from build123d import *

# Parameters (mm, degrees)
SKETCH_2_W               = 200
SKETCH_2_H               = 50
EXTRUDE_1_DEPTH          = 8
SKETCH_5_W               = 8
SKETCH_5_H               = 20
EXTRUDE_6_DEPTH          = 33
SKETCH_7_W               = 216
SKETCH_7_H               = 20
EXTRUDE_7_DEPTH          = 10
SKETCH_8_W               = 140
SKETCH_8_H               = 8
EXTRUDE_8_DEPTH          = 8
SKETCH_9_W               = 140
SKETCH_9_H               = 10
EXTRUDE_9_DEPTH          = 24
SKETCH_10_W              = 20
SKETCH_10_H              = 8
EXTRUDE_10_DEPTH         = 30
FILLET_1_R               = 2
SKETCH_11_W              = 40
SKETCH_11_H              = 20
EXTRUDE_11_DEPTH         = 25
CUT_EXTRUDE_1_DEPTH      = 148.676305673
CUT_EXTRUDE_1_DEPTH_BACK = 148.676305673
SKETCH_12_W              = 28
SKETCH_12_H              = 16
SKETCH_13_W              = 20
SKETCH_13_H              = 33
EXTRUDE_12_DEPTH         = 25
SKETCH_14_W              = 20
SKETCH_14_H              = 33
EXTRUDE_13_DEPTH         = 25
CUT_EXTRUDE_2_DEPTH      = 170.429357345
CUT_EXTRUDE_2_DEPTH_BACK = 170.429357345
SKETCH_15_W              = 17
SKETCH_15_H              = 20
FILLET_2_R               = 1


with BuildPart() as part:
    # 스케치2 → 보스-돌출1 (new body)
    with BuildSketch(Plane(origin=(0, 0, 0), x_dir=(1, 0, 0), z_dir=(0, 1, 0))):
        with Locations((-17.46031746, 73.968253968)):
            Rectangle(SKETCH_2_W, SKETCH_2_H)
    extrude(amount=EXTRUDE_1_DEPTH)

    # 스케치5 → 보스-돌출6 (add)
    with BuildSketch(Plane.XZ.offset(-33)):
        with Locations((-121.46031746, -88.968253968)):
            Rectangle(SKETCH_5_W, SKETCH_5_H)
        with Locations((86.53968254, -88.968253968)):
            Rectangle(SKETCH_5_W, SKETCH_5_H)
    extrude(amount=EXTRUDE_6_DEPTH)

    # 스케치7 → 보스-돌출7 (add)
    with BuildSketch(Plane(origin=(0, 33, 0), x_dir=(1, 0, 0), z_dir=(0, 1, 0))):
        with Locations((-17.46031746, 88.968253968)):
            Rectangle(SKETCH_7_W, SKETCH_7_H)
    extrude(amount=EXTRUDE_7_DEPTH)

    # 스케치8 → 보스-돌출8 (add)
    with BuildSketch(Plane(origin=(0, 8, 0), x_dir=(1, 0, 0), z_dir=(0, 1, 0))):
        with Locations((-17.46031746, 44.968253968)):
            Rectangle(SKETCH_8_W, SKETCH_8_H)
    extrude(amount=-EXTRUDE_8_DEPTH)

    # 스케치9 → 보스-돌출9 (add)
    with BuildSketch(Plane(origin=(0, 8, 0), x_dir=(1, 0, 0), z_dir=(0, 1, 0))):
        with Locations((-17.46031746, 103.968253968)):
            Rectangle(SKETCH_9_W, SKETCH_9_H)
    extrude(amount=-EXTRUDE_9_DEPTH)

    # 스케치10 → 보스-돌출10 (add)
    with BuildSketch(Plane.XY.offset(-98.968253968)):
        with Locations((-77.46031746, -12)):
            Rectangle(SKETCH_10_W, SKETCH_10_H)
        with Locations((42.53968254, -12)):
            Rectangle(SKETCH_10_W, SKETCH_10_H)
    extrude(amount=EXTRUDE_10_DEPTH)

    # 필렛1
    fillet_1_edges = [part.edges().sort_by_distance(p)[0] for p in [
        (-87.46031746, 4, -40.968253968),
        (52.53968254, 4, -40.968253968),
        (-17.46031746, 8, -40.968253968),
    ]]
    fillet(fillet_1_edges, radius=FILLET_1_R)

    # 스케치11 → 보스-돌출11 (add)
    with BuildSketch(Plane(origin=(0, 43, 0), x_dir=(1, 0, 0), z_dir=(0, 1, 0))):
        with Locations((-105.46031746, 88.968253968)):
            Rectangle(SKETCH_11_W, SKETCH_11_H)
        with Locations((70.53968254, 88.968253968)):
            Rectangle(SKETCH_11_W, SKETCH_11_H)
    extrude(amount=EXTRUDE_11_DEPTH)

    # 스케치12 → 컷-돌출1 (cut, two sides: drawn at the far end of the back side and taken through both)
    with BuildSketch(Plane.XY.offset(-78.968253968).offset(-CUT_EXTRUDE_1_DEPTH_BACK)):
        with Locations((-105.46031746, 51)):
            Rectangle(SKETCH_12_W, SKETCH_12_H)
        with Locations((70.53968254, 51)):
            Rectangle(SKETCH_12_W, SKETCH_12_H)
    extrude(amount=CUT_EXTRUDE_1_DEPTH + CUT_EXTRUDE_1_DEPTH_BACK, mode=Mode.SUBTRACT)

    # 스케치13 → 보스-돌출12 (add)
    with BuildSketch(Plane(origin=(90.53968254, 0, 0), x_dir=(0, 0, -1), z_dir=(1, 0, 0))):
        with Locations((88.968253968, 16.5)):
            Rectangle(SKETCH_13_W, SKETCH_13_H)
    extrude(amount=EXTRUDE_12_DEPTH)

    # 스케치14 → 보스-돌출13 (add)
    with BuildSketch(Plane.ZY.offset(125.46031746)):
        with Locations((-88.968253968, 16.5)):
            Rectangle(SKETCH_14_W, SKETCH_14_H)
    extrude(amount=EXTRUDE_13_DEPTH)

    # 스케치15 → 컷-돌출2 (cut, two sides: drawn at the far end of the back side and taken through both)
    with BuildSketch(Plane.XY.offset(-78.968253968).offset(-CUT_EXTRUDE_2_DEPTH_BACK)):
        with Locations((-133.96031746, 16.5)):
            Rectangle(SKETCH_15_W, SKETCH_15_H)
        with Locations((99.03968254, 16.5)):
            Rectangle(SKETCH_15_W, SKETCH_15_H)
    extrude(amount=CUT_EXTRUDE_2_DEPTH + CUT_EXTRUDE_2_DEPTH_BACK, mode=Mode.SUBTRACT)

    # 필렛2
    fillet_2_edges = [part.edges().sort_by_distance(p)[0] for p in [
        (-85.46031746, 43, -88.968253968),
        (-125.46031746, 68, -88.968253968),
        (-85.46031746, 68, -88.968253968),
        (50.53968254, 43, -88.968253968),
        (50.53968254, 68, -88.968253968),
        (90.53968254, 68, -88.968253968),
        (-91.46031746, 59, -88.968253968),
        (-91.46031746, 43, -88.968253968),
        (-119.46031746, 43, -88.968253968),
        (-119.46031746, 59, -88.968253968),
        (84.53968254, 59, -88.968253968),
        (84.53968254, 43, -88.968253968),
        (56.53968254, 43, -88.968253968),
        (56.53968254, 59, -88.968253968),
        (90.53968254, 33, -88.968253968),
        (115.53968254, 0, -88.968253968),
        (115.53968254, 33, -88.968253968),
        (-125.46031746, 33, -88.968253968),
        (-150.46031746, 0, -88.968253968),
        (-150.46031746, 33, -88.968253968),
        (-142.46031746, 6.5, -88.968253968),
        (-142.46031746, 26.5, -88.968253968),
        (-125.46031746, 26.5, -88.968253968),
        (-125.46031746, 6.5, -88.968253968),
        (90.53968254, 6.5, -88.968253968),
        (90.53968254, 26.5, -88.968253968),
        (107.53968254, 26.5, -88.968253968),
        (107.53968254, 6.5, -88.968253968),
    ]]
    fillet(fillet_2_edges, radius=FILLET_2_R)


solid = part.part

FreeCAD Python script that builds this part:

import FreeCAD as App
import Part
import Sketcher
from FreeCAD import Vector
Q = App.Units.Quantity


def edges_at(feature, points):
    """Names of the edges that pass closest to the given points."""
    edges = feature.Shape.Edges
    near = lambda p: min(range(len(edges)), key=lambda i: edges[i].distToShape(Part.Vertex(*p))[0])
    return sorted({f"Edge{near(p) + 1}" for p in points})


def add_polygon(sketch, points):
    """Adds a closed chain of lines whose ends are joined by coincident constraints."""
    first, n = sketch.GeometryCount, len(points)
    for a, b in zip(points, points[1:] + points[:1]):
        sketch.addGeometry(Part.LineSegment(App.Vector(*a, 0), App.Vector(*b, 0)), False)
    for i in range(n):
        sketch.addConstraint(Sketcher.Constraint("Coincident", first + i, 2, first + (i + 1) % n, 1))

doc = App.newDocument("Part")
params = doc.addObject("Spreadsheet::Sheet", "Params")
for row, (alias, value) in enumerate([
    ("sketch1_width", "200 mm"),
    ("sketch1_height", "50 mm"),
    ("pad1_length", "8 mm"),
    ("sketch2_width", "8 mm"),
    ("sketch2_height", "20 mm"),
    ("pad2_length", "33 mm"),
    ("sketch3_width", "216 mm"),
    ("sketch3_height", "20 mm"),
    ("pad3_length", "10 mm"),
    ("sketch4_width", "140 mm"),
    ("sketch4_height", "8 mm"),
    ("pad4_length", "8 mm"),
    ("sketch5_width", "140 mm"),
    ("sketch5_height", "10 mm"),
    ("pad5_length", "24 mm"),
    ("sketch6_width", "20 mm"),
    ("sketch6_height", "8 mm"),
    ("pad6_length", "30 mm"),
    ("fillet_radius", "2 mm"),
    ("sketch7_width", "40 mm"),
    ("sketch7_height", "20 mm"),
    ("pad7_length", "25 mm"),
    ("sketch8_width", "28 mm"),
    ("sketch8_height", "16 mm"),
    ("sketch9_width", "33 mm"),
    ("sketch9_height", "20 mm"),
    ("pad8_length", "25 mm"),
    ("sketch10_width", "33 mm"),
    ("sketch10_height", "20 mm"),
    ("pad9_length", "25 mm"),
    ("sketch11_width", "17 mm"),
    ("sketch11_height", "20 mm"),
    ("fillet2_radius", "1 mm"),
], start=1):
    params.set(f"A{row}", alias)
    params.set(f"B{row}", "=" + value)
    params.setAlias(f"B{row}", alias)

body = doc.addObject("PartDesign::Body", "Body")

sketch1 = body.newObject("Sketcher::SketchObject", "Sketch")
sketch1.AttachmentSupport = (doc.getObject("XZ_Plane"), [""])
sketch1.MapMode = "FlatFace"
add_polygon(sketch1, [(-117, -99), (-117, -49), (83, -49), (83, -99)])
sketch1.addConstraint([
    Sketcher.Constraint("Vertical", 0),
    Sketcher.Constraint("Horizontal", 1),
    Sketcher.Constraint("Vertical", 2),
    Sketcher.Constraint("Horizontal", 3),
    Sketcher.Constraint("DistanceX", 1, 1, 1, 2, Q("200 mm")),
    Sketcher.Constraint("DistanceY", 0, 1, 0, 2, Q("50 mm")),
    Sketcher.Constraint("DistanceX", 0, 2, -1, 1, Q("117.460317 mm")),
    Sketcher.Constraint("DistanceY", 0, 2, -1, 1, Q("48.968254 mm")),
])
sketch1.setExpression("Constraints[8]", "Params.sketch1_width")
sketch1.setExpression("Constraints[9]", "Params.sketch1_height")
pad1 = body.newObject("PartDesign::Pad", "Pad")
pad1.Profile = sketch1
pad1.setExpression("Length", "Params.pad1_length")
pad1.Reversed = True

sketch2 = body.newObject("Sketcher::SketchObject", "Sketch001")
sketch2.AttachmentSupport = (doc.getObject("XZ_Plane"), [""])
sketch2.MapMode = "FlatFace"
sketch2.AttachmentOffset = App.Placement(Vector(0, 0, -33), App.Rotation())
add_polygon(sketch2, [(-125, -79), (-125, -99), (-117, -99), (-117, -79)])
add_polygon(sketch2, [(83, -79), (83, -99), (91, -99), (91, -79)])
sketch2.addConstraint([
    Sketcher.Constraint("Vertical", 0),
    Sketcher.Constraint("Horizontal", 1),
    Sketcher.Constraint("Vertical", 2),
    Sketcher.Constraint("Horizontal", 3),
    Sketcher.Constraint("Vertical", 4),
    Sketcher.Constraint("Horizontal", 5),
    Sketcher.Constraint("Vertical", 6),
    Sketcher.Constraint("Horizontal", 7),
    Sketcher.Constraint("Horizontal", 1, 2, 4, 2),
    Sketcher.Constraint("Horizontal", 3, 2, 6, 2),
    Sketcher.Constraint("Equal", 3, 5),
    Sketcher.Constraint("DistanceX", 1, 1, 1, 2, Q("8 mm")),
    Sketcher.Constraint("DistanceY", 0, 2, 0, 1, Q("20 mm")),
    Sketcher.Constraint("DistanceX", 1, 2, 4, 2, Q("200 mm")),
    Sketcher.Constraint("DistanceX", 0, 2, -1, 1, Q("125.460317 mm")),
    Sketcher.Constraint("DistanceY", 0, 2, -1, 1, Q("98.968254 mm")),
])
sketch2.setExpression("Constraints[19]", "Params.sketch2_width")
sketch2.setExpression("Constraints[20]", "Params.sketch2_height")
pad2 = body.newObject("PartDesign::Pad", "Pad001")
pad2.Profile = sketch2
pad2.setExpression("Length", "Params.pad2_length")

sketch3 = body.newObject("Sketcher::SketchObject", "Sketch002")
sketch3.AttachmentSupport = (doc.getObject("XZ_Plane"), [""])
sketch3.MapMode = "FlatFace"
sketch3.AttachmentOffset = App.Placement(Vector(0, 0, -33), App.Rotation())
add_polygon(sketch3, [(-125, -99), (-125, -79), (91, -79), (91, -99)])
sketch3.addConstraint([
    Sketcher.Constraint("Vertical", 0),
    Sketcher.Constraint("Horizontal", 1),
    Sketcher.Constraint("Vertical", 2),
    Sketcher.Constraint("Horizontal", 3),
    Sketcher.Constraint("DistanceX", 1, 1, 1, 2, Q("216 mm")),
    Sketcher.Constraint("DistanceY", 0, 1, 0, 2, Q("20 mm")),
    Sketcher.Constraint("DistanceX", 0, 2, -1, 1, Q("125.460317 mm")),
    Sketcher.Constraint("DistanceY", 0, 2, -1, 1, Q("78.968254 mm")),
])
sketch3.setExpression("Constraints[8]", "Params.sketch3_width")
sketch3.setExpression("Constraints[9]", "Params.sketch3_height")
pad3 = body.newObject("PartDesign::Pad", "Pad002")
pad3.Profile = sketch3
pad3.setExpression("Length", "Params.pad3_length")
pad3.Reversed = True

sketch4 = body.newObject("Sketcher::SketchObject", "Sketch003")
sketch4.AttachmentSupport = (doc.getObject("XZ_Plane"), [""])
sketch4.MapMode = "FlatFace"
sketch4.AttachmentOffset = App.Placement(Vector(0, 0, -8), App.Rotation())
add_polygon(sketch4, [(-87, -49), (-87, -41), (53, -41), (53, -49)])
sketch4.addConstraint([
    Sketcher.Constraint("Vertical", 0),
    Sketcher.Constraint("Horizontal", 1),
    Sketcher.Constraint("Vertical", 2),
    Sketcher.Constraint("Horizontal", 3),
    Sketcher.Constraint("DistanceX", 1, 1, 1, 2, Q("140 mm")),
    Sketcher.Constraint("DistanceY", 0, 1, 0, 2, Q("8 mm")),
    Sketcher.Constraint("DistanceX", 0, 2, -1, 1, Q("87.460317 mm")),
    Sketcher.Constraint("DistanceY", 0, 2, -1, 1, Q("40.968254 mm")),
])
sketch4.setExpression("Constraints[8]", "Params.sketch4_width")
sketch4.setExpression("Constraints[9]", "Params.sketch4_height")
pad4 = body.newObject("PartDesign::Pad", "Pad003")
pad4.Profile = sketch4
pad4.setExpression("Length", "Params.pad4_length")

sketch5 = body.newObject("Sketcher::SketchObject", "Sketch004")
sketch5.AttachmentSupport = (doc.getObject("XZ_Plane"), [""])
sketch5.MapMode = "FlatFace"
sketch5.AttachmentOffset = App.Placement(Vector(0, 0, -8), App.Rotation())
add_polygon(sketch5, [(-87, -109), (-87, -99), (53, -99), (53, -109)])
sketch5.addConstraint([
    Sketcher.Constraint("Vertical", 0),
    Sketcher.Constraint("Horizontal", 1),
    Sketcher.Constraint("Vertical", 2),
    Sketcher.Constraint("Horizontal", 3),
    Sketcher.Constraint("DistanceX", 1, 1, 1, 2, Q("140 mm")),
    Sketcher.Constraint("DistanceY", 0, 1, 0, 2, Q("10 mm")),
    Sketcher.Constraint("DistanceX", 0, 2, -1, 1, Q("87.460317 mm")),
    Sketcher.Constraint("DistanceY", 0, 2, -1, 1, Q("98.968254 mm")),
])
sketch5.setExpression("Constraints[8]", "Params.sketch5_width")
sketch5.setExpression("Constraints[9]", "Params.sketch5_height")
pad5 = body.newObject("PartDesign::Pad", "Pad004")
pad5.Profile = sketch5
pad5.setExpression("Length", "Params.pad5_length")

sketch6 = body.newObject("Sketcher::SketchObject", "Sketch005")
sketch6.AttachmentSupport = (doc.getObject("XY_Plane"), [""])
sketch6.MapMode = "FlatFace"
sketch6.AttachmentOffset = App.Placement(Vector(0, 0, -98.968254), App.Rotation())
add_polygon(sketch6, [(-87, -8), (-87, -16), (-67, -16), (-67, -8)])
add_polygon(sketch6, [(33, -8), (33, -16), (53, -16), (53, -8)])
sketch6.addConstraint([
    Sketcher.Constraint("Vertical", 0),
    Sketcher.Constraint("Horizontal", 1),
    Sketcher.Constraint("Vertical", 2),
    Sketcher.Constraint("Horizontal", 3),
    Sketcher.Constraint("Vertical", 4),
    Sketcher.Constraint("Horizontal", 5),
    Sketcher.Constraint("Vertical", 6),
    Sketcher.Constraint("Horizontal", 7),
    Sketcher.Constraint("Horizontal", 1, 2, 4, 2),
    Sketcher.Constraint("Horizontal", 3, 2, 6, 2),
    Sketcher.Constraint("Equal", 3, 5),
    Sketcher.Constraint("DistanceX", 1, 1, 1, 2, Q("20 mm")),
    Sketcher.Constraint("DistanceY", 0, 2, 0, 1, Q("8 mm")),
    Sketcher.Constraint("DistanceY", 0, 2, -1, 1, Q("16 mm")),
    Sketcher.Constraint("DistanceX", 1, 2, 4, 2, Q("100 mm")),
    Sketcher.Constraint("DistanceX", 0, 2, -1, 1, Q("87.460317 mm")),
])
sketch6.setExpression("Constraints[19]", "Params.sketch6_width")
sketch6.setExpression("Constraints[20]", "Params.sketch6_height")
pad6 = body.newObject("PartDesign::Pad", "Pad005")
pad6.Profile = sketch6
pad6.setExpression("Length", "Params.pad6_length")
doc.recompute()

fillet = body.newObject("PartDesign::Fillet", "Fillet")
fillet.Base = (pad6, edges_at(pad6, [(-87.46, 4, -40.968), (52.54, 4, -40.968), (-17.46, 8, -40.968)]))
fillet.setExpression("Radius", "Params.fillet_radius")

sketch7 = body.newObject("Sketcher::SketchObject", "Sketch006")
sketch7.AttachmentSupport = (doc.getObject("XZ_Plane"), [""])
sketch7.MapMode = "FlatFace"
sketch7.AttachmentOffset = App.Placement(Vector(0, 0, -43), App.Rotation())
add_polygon(sketch7, [(-125, -99), (-125, -79), (-85, -79), (-85, -99)])
add_polygon(sketch7, [(51, -99), (51, -79), (91, -79), (91, -99)])
sketch7.addConstraint([
    Sketcher.Constraint("Vertical", 0),
    Sketcher.Constraint("Horizontal", 1),
    Sketcher.Constraint("Vertical", 2),
    Sketcher.Constraint("Horizontal", 3),
    Sketcher.Constraint("Vertical", 4),
    Sketcher.Constraint("Horizontal", 5),
    Sketcher.Constraint("Vertical", 6),
    Sketcher.Constraint("Horizontal", 7),
    Sketcher.Constraint("Horizontal", 1, 2, 4, 2),
    Sketcher.Constraint("Horizontal", 3, 2, 6, 2),
    Sketcher.Constraint("Equal", 3, 5),
    Sketcher.Constraint("DistanceX", 1, 1, 1, 2, Q("40 mm")),
    Sketcher.Constraint("DistanceY", 0, 1, 0, 2, Q("20 mm")),
    Sketcher.Constraint("DistanceX", 1, 2, 4, 2, Q("136 mm")),
    Sketcher.Constraint("DistanceX", 0, 2, -1, 1, Q("125.460317 mm")),
    Sketcher.Constraint("DistanceY", 0, 2, -1, 1, Q("78.968254 mm")),
])
sketch7.setExpression("Constraints[19]", "Params.sketch7_width")
sketch7.setExpression("Constraints[20]", "Params.sketch7_height")
pad7 = body.newObject("PartDesign::Pad", "Pad006")
pad7.Profile = sketch7
pad7.setExpression("Length", "Params.pad7_length")
pad7.Reversed = True

sketch8 = body.newObject("Sketcher::SketchObject", "Sketch007")
sketch8.AttachmentSupport = (doc.getObject("XY_Plane"), [""])
sketch8.MapMode = "FlatFace"
sketch8.AttachmentOffset = App.Placement(Vector(0, 0, -78.968254), App.Rotation())
add_polygon(sketch8, [(-119, 59), (-119, 43), (-91, 43), (-91, 59)])
add_polygon(sketch8, [(57, 59), (57, 43), (85, 43), (85, 59)])
sketch8.addConstraint([
    Sketcher.Constraint("Vertical", 0),
    Sketcher.Constraint("Horizontal", 1),
    Sketcher.Constraint("Vertical", 2),
    Sketcher.Constraint("Horizontal", 3),
    Sketcher.Constraint("Vertical", 4),
    Sketcher.Constraint("Horizontal", 5),
    Sketcher.Constraint("Vertical", 6),
    Sketcher.Constraint("Horizontal", 7),
    Sketcher.Constraint("Horizontal", 1, 2, 4, 2),
    Sketcher.Constraint("Horizontal", 3, 2, 6, 2),
    Sketcher.Constraint("Equal", 3, 5),
    Sketcher.Constraint("DistanceX", 1, 1, 1, 2, Q("28 mm")),
    Sketcher.Constraint("DistanceY", 0, 2, 0, 1, Q("16 mm")),
    Sketcher.Constraint("DistanceY", -1, 1, 0, 2, Q("43 mm")),
    Sketcher.Constraint("DistanceX", 1, 2, 4, 2, Q("148 mm")),
    Sketcher.Constraint("DistanceX", 0, 2, -1, 1, Q("119.460317 mm")),
])
sketch8.setExpression("Constraints[19]", "Params.sketch8_width")
sketch8.setExpression("Constraints[20]", "Params.sketch8_height")
pocket1 = body.newObject("PartDesign::Pocket", "Pocket")
pocket1.Profile = sketch8
pocket1.Type = "ThroughAll"
pocket1.Midplane = True

sketch9 = body.newObject("Sketcher::SketchObject", "Sketch008")
sketch9.AttachmentSupport = (doc.getObject("YZ_Plane"), [""])
sketch9.MapMode = "FlatFace"
sketch9.AttachmentOffset = App.Placement(Vector(0, 0, 90.539683), App.Rotation())
add_polygon(sketch9, [(33, -79), (0, -79), (0, -99), (33, -99)])
sketch9.addConstraint([
    Sketcher.Constraint("Horizontal", 0),
    Sketcher.Constraint("Vertical", 1),
    Sketcher.Constraint("Horizontal", 2),
    Sketcher.Constraint("Vertical", 3),
    Sketcher.Constraint("PointOnObject", 0, 2, -2),
    Sketcher.Constraint("DistanceX", 0, 2, 0, 1, Q("33 mm")),
    Sketcher.Constraint("DistanceY", 1, 2, 1, 1, Q("20 mm")),
    Sketcher.Constraint("DistanceY", 0, 2, -1, 1, Q("78.968254 mm")),
])
sketch9.setExpression("Constraints[9]", "Params.sketch9_width")
sketch9.setExpression("Constraints[10]", "Params.sketch9_height")
pad8 = body.newObject("PartDesign::Pad", "Pad007")
pad8.Profile = sketch9
pad8.setExpression("Length", "Params.pad8_length")

sketch10 = body.newObject("Sketcher::SketchObject", "Sketch009")
sketch10.AttachmentSupport = (doc.getObject("YZ_Plane"), [""])
sketch10.MapMode = "FlatFace"
sketch10.AttachmentOffset = App.Placement(Vector(0, 0, -125.460317), App.Rotation())
add_polygon(sketch10, [(33, -99), (0, -99), (0, -79), (33, -79)])
sketch10.addConstraint([
    Sketcher.Constraint("Horizontal", 0),
    Sketcher.Constraint("Vertical", 1),
    Sketcher.Constraint("Horizontal", 2),
    Sketcher.Constraint("Vertical", 3),
    Sketcher.Constraint("PointOnObject", 0, 2, -2),
    Sketcher.Constraint("DistanceX", 0, 2, 0, 1, Q("33 mm")),
    Sketcher.Constraint("DistanceY", 1, 1, 1, 2, Q("20 mm")),
    Sketcher.Constraint("DistanceY", 0, 2, -1, 1, Q("98.968254 mm")),
])
sketch10.setExpression("Constraints[9]", "Params.sketch10_width")
sketch10.setExpression("Constraints[10]", "Params.sketch10_height")
pad9 = body.newObject("PartDesign::Pad", "Pad008")
pad9.Profile = sketch10
pad9.setExpression("Length", "Params.pad9_length")
pad9.Reversed = True

sketch11 = body.newObject("Sketcher::SketchObject", "Sketch010")
sketch11.AttachmentSupport = (doc.getObject("XY_Plane"), [""])
sketch11.MapMode = "FlatFace"
sketch11.AttachmentOffset = App.Placement(Vector(0, 0, -78.968254), App.Rotation())
add_polygon(sketch11, [(-142, 26), (-142, 6), (-125, 6), (-125, 26)])
add_polygon(sketch11, [(91, 26), (91, 6), (108, 6), (108, 26)])
sketch11.addConstraint([
    Sketcher.Constraint("Vertical", 0),
    Sketcher.Constraint("Horizontal", 1),
    Sketcher.Constraint("Vertical", 2),
    Sketcher.Constraint("Horizontal", 3),
    Sketcher.Constraint("Vertical", 4),
    Sketcher.Constraint("Horizontal", 5),
    Sketcher.Constraint("Vertical", 6),
    Sketcher.Constraint("Horizontal", 7),
    Sketcher.Constraint("Horizontal", 1, 2, 4, 2),
    Sketcher.Constraint("Horizontal", 3, 2, 6, 2),
    Sketcher.Constraint("Equal", 3, 5),
    Sketcher.Constraint("DistanceX", 1, 1, 1, 2, Q("17 mm")),
    Sketcher.Constraint("DistanceY", 0, 2, 0, 1, Q("20 mm")),
    Sketcher.Constraint("DistanceX", 1, 2, 4, 2, Q("216 mm")),
    Sketcher.Constraint("DistanceY", -1, 1, 0, 2, Q("6.5 mm")),
    Sketcher.Constraint("DistanceX", 0, 2, -1, 1, Q("142.460317 mm")),
])
sketch11.setExpression("Constraints[19]", "Params.sketch11_width")
sketch11.setExpression("Constraints[20]", "Params.sketch11_height")
pocket2 = body.newObject("PartDesign::Pocket", "Pocket001")
pocket2.Profile = sketch11
pocket2.Type = "ThroughAll"
pocket2.Midplane = True
doc.recompute()

fillet2 = body.newObject("PartDesign::Fillet", "Fillet001")
fillet2.Base = (pocket2, edges_at(pocket2, [
    (-85.46, 43, -88.968),
    (-125.46, 68, -88.968),
    (-85.46, 68, -88.968),
    (50.54, 43, -88.968),
    (50.54, 68, -88.968),
    (90.54, 68, -88.968),
    (-91.46, 59, -88.968),
    (-91.46, 43, -88.968),
    (-119.46, 43, -88.968),
    (-119.46, 59, -88.968),
    (84.54, 59, -88.968),
    (84.54, 43, -88.968),
    (56.54, 43, -88.968),
    (56.54, 59, -88.968),
    (90.54, 33, -88.968),
    (115.54, 0, -88.968),
    (115.54, 33, -88.968),
    (-125.46, 33, -88.968),
    (-150.46, 0, -88.968),
    (-150.46, 33, -88.968),
    (-142.46, 6.5, -88.968),
    (-142.46, 26.5, -88.968),
    (-125.46, 26.5, -88.968),
    (-125.46, 6.5, -88.968),
    (90.54, 6.5, -88.968),
    (90.54, 26.5, -88.968),
    (107.54, 26.5, -88.968),
    (107.54, 6.5, -88.968),
]))
fillet2.setExpression("Radius", "Params.fillet2_radius")

doc.recompute()
